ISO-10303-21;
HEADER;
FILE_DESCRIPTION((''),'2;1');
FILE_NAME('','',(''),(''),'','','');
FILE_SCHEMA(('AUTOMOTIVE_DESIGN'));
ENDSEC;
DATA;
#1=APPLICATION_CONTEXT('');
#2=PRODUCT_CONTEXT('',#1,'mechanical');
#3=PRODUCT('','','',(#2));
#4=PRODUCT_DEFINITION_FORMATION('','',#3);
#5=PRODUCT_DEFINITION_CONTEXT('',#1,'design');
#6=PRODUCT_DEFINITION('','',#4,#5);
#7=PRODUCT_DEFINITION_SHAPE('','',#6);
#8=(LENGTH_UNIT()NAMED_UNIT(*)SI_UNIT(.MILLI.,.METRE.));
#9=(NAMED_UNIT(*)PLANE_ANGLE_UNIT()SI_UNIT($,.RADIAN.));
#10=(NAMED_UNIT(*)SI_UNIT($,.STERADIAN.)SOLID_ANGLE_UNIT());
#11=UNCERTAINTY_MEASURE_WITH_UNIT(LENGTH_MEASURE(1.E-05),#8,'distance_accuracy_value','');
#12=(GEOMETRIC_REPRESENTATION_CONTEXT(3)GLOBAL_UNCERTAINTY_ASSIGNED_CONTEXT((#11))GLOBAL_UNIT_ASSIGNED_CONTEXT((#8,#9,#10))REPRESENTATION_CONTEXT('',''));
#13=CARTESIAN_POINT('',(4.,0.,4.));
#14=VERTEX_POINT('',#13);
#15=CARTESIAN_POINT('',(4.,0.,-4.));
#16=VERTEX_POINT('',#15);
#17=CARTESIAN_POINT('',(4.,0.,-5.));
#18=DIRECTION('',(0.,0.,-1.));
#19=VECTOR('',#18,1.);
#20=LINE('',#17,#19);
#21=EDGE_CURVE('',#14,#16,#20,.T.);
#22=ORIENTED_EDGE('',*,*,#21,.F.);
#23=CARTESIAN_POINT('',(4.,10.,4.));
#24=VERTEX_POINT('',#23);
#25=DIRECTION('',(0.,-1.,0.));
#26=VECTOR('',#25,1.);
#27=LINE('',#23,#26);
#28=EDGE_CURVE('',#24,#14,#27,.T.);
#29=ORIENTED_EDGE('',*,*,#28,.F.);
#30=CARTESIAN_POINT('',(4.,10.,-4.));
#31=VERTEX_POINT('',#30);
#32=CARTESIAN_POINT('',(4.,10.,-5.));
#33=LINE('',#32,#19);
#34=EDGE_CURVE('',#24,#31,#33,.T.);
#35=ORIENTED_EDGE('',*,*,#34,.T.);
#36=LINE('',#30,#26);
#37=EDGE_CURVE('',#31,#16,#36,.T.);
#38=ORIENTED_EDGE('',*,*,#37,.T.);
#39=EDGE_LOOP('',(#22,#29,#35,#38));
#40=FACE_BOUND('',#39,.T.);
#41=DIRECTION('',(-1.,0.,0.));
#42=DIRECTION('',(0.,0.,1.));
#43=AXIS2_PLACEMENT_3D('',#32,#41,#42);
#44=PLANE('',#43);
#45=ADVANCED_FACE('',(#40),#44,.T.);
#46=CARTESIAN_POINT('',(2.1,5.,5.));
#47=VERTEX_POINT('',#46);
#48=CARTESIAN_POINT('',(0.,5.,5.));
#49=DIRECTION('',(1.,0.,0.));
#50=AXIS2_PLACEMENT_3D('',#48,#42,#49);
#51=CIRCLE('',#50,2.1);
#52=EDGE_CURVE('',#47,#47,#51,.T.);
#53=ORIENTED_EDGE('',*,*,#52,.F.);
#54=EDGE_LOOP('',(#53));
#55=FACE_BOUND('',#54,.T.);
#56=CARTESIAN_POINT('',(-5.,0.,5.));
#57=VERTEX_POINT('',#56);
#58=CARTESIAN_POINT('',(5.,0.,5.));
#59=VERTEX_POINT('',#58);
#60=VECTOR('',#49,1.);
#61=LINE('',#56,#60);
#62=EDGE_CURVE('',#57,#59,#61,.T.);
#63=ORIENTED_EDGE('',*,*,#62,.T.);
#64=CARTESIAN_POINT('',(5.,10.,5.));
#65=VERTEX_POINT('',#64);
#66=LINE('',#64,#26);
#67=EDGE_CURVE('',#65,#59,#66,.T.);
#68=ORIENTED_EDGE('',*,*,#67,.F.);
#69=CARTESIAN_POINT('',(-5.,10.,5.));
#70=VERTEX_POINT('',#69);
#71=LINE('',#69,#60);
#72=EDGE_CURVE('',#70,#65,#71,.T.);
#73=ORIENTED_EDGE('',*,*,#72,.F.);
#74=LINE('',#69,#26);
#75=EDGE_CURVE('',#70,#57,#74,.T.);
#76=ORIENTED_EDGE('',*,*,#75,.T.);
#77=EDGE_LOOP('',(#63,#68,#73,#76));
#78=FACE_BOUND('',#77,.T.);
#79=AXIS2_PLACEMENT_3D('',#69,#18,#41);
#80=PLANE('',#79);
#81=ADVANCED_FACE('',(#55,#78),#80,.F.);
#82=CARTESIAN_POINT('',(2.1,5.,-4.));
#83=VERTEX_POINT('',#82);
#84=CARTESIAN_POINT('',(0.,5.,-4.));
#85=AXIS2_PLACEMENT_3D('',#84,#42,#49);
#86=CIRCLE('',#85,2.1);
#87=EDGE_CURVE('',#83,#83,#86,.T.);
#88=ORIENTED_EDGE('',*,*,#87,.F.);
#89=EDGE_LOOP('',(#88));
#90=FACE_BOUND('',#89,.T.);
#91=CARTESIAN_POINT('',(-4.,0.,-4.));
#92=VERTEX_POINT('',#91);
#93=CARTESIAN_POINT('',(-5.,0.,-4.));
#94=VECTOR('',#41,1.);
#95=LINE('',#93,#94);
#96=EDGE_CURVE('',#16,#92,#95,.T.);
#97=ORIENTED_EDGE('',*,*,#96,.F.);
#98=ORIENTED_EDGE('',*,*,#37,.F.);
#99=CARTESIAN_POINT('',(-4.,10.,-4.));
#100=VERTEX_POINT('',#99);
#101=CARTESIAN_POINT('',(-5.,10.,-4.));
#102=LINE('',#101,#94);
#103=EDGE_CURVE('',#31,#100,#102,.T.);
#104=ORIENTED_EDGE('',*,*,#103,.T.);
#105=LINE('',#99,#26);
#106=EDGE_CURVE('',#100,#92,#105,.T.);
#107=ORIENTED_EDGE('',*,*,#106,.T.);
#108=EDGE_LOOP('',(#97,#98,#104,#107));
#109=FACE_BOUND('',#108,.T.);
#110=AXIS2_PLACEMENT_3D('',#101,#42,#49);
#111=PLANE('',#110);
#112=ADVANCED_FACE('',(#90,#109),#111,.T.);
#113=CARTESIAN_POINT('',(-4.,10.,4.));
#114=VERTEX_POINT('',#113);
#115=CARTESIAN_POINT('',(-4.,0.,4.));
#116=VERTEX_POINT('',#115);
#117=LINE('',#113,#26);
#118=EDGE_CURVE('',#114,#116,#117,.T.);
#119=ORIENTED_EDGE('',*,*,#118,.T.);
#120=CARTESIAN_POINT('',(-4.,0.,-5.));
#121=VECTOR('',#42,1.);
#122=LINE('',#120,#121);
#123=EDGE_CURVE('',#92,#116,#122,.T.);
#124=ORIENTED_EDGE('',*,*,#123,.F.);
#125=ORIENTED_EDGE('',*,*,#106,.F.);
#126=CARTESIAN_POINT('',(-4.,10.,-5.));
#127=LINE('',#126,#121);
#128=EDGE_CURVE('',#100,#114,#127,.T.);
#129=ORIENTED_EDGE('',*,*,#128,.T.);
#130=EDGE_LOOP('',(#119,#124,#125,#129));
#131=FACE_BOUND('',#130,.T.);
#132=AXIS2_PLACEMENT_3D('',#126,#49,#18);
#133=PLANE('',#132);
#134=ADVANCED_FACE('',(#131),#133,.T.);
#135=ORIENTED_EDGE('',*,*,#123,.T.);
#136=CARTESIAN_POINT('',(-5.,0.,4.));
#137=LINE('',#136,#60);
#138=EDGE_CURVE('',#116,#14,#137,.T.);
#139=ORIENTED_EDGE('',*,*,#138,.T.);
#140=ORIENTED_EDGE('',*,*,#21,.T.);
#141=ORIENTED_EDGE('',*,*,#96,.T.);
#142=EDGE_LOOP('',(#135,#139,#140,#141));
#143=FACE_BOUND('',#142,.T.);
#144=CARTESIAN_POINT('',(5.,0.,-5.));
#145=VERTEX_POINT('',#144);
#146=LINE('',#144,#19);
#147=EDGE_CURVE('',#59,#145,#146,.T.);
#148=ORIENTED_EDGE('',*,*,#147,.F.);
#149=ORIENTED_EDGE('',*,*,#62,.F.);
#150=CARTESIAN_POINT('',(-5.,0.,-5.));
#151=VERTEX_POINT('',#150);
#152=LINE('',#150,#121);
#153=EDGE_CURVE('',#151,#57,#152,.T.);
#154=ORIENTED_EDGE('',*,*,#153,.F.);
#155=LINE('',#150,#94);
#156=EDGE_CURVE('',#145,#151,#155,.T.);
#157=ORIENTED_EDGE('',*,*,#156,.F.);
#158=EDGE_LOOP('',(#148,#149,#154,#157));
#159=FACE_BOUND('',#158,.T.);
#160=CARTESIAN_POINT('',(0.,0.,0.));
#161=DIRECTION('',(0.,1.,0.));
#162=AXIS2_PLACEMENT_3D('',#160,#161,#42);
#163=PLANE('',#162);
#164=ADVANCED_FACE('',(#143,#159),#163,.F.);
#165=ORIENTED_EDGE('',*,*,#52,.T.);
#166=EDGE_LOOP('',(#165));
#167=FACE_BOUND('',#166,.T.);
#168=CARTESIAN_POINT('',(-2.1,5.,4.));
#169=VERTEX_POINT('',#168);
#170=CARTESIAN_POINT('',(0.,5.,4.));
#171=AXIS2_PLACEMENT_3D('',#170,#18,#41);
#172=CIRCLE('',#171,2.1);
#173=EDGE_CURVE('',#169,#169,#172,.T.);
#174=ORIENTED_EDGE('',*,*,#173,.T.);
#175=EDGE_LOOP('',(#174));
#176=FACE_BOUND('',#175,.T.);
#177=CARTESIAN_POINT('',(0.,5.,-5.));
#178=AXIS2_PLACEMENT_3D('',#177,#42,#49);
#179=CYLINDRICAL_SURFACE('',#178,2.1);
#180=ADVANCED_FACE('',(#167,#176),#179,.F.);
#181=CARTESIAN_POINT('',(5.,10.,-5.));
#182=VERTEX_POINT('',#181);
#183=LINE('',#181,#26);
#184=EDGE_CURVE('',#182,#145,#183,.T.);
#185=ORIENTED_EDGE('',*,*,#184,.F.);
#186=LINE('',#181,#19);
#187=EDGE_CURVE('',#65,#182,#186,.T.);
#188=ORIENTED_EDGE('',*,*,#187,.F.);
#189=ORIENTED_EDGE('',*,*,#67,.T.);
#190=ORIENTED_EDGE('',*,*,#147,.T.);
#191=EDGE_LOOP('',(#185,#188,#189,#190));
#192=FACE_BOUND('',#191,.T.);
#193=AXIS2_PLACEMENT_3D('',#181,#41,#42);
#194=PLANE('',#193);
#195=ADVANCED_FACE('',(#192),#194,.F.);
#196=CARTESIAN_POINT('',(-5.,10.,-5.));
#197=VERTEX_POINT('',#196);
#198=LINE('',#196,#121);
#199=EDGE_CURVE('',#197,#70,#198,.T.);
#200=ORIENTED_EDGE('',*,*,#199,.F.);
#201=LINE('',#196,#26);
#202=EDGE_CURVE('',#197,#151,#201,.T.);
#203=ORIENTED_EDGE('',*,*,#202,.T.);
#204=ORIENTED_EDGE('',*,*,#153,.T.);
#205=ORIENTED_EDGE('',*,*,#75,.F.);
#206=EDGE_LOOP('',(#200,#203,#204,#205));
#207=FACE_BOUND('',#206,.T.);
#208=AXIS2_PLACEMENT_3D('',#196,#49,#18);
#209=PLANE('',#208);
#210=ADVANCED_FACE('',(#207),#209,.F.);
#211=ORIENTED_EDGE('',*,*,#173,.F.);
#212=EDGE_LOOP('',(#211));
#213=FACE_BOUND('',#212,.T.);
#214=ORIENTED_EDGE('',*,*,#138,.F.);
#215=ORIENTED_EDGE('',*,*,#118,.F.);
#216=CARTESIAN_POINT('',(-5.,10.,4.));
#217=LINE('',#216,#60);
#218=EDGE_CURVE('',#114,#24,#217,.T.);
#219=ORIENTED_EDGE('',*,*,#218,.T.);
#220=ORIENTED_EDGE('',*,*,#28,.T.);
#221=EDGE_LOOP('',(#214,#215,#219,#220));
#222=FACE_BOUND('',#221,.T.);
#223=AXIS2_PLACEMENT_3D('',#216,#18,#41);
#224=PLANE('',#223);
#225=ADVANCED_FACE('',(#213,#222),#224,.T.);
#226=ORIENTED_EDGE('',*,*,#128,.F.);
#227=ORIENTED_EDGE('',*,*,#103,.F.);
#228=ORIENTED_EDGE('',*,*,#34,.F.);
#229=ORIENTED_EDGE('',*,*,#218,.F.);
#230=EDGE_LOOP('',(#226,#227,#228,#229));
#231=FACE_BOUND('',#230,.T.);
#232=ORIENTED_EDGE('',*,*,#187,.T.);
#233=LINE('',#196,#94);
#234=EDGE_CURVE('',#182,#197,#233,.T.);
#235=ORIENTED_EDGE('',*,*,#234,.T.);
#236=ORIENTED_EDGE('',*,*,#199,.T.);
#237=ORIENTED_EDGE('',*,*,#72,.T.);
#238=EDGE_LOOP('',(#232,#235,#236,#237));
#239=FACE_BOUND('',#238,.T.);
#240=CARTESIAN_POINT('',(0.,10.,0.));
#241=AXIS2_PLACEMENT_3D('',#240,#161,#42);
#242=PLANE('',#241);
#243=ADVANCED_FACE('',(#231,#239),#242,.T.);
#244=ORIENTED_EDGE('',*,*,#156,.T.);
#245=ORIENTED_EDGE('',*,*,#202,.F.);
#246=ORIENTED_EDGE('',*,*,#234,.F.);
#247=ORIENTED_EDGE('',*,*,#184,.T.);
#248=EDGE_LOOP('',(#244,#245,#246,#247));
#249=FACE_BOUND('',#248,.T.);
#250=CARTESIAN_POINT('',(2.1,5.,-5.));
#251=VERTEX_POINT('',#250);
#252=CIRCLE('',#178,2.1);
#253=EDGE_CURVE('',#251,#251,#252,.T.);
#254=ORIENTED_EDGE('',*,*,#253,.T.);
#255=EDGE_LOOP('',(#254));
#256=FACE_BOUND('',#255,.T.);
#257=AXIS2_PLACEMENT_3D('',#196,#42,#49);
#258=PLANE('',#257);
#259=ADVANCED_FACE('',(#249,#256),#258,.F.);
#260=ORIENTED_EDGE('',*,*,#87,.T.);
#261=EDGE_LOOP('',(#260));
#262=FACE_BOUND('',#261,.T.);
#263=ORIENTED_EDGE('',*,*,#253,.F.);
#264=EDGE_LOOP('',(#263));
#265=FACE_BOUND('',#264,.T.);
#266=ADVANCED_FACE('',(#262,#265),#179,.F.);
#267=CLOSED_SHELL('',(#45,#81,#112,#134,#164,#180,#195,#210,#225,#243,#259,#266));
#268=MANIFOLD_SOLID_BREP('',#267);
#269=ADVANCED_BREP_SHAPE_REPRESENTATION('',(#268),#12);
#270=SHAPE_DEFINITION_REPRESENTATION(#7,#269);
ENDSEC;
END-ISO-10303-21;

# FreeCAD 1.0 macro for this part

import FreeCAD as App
import Part
import Sketcher
Q = App.Units.Quantity

doc = App.newDocument("Part")
body = doc.addObject("PartDesign::Body", "Body")

# Sketch on XZ plane
sketch1 = body.newObject("Sketcher::SketchObject", "Sketch")
sketch1.AttachmentSupport = (doc.getObject("XZ_Plane"), [""])
sketch1.MapMode = "FlatFace"
sketch1.addGeometry(Part.LineSegment(App.Vector(-5, -5, 0), App.Vector(-5, 5, 0)), False)
sketch1.addGeometry(Part.LineSegment(App.Vector(-5, 5, 0), App.Vector(5, 5, 0)), False)
sketch1.addGeometry(Part.LineSegment(App.Vector(5, 5, 0), App.Vector(5, -5, 0)), False)
sketch1.addGeometry(Part.LineSegment(App.Vector(5, -5, 0), App.Vector(-5, -5, 0)), False)
sketch1.addGeometry(Part.LineSegment(App.Vector(4, 4, 0), App.Vector(-4, 4, 0)), False)
sketch1.addGeometry(Part.LineSegment(App.Vector(-4, 4, 0), App.Vector(-4, -4, 0)), False)
sketch1.addGeometry(Part.LineSegment(App.Vector(-4, -4, 0), App.Vector(4, -4, 0)), False)
sketch1.addGeometry(Part.LineSegment(App.Vector(4, -4, 0), App.Vector(4, 4, 0)), False)
sketch1.addConstraint(Sketcher.Constraint("Coincident", 0, 2, 1, 1))
sketch1.addConstraint(Sketcher.Constraint("Coincident", 1, 2, 2, 1))
sketch1.addConstraint(Sketcher.Constraint("Coincident", 2, 2, 3, 1))
sketch1.addConstraint(Sketcher.Constraint("Coincident", 3, 2, 0, 1))
sketch1.addConstraint(Sketcher.Constraint("Coincident", 4, 2, 5, 1))
sketch1.addConstraint(Sketcher.Constraint("Coincident", 5, 2, 6, 1))
sketch1.addConstraint(Sketcher.Constraint("Coincident", 6, 2, 7, 1))
sketch1.addConstraint(Sketcher.Constraint("Coincident", 7, 2, 4, 1))
sketch1.addConstraint(Sketcher.Constraint("Vertical", 0))
sketch1.addConstraint(Sketcher.Constraint("Horizontal", 1))
sketch1.addConstraint(Sketcher.Constraint("Vertical", 2))
sketch1.addConstraint(Sketcher.Constraint("Horizontal", 3))
sketch1.addConstraint(Sketcher.Constraint("Horizontal", 4))
sketch1.addConstraint(Sketcher.Constraint("Vertical", 5))
sketch1.addConstraint(Sketcher.Constraint("Horizontal", 6))
sketch1.addConstraint(Sketcher.Constraint("Vertical", 7))
sketch1.addConstraint(Sketcher.Constraint("Symmetric", 0, 2, 2, 2, -1, 1))
sketch1.addConstraint(Sketcher.Constraint("Symmetric", 4, 2, 6, 2, -1, 1))
sketch1.addConstraint(Sketcher.Constraint("Equal", 3, 0))
sketch1.addConstraint(Sketcher.Constraint("Equal", 6, 5))
sketch1.addConstraint(Sketcher.Constraint("DistanceX", 1, 1, 1, 2, Q("10 mm")))
sketch1.addConstraint(Sketcher.Constraint("DistanceX", 4, 2, 4, 1, Q("8 mm")))
pad1 = body.newObject("PartDesign::Pad", "Pad")
pad1.Profile = sketch1
pad1.Length = 10
pad1.Reversed = True

# Sketch on XY plane
sketch2 = body.newObject("Sketcher::SketchObject", "Sketch001")
sketch2.AttachmentSupport = (doc.getObject("XY_Plane"), [""])
sketch2.MapMode = "FlatFace"
sketch2.AttachmentOffset = App.Placement(App.Vector(0, 0, 5), App.Rotation())
sketch2.addGeometry(Part.Circle(App.Vector(0, 5, 0), App.Vector(0, 0, 1), 2.1), False)
sketch2.addConstraint(Sketcher.Constraint("PointOnObject", 0, 3, -2))
sketch2.addConstraint(Sketcher.Constraint("Diameter", 0, Q("4.2 mm")))
sketch2.addConstraint(Sketcher.Constraint("DistanceY", -1, 1, 0, 3, Q("5 mm")))
pocket1 = body.newObject("PartDesign::Pocket", "Pocket")
pocket1.Profile = sketch2
pocket1.Type = "ThroughAll"

doc.recompute()
